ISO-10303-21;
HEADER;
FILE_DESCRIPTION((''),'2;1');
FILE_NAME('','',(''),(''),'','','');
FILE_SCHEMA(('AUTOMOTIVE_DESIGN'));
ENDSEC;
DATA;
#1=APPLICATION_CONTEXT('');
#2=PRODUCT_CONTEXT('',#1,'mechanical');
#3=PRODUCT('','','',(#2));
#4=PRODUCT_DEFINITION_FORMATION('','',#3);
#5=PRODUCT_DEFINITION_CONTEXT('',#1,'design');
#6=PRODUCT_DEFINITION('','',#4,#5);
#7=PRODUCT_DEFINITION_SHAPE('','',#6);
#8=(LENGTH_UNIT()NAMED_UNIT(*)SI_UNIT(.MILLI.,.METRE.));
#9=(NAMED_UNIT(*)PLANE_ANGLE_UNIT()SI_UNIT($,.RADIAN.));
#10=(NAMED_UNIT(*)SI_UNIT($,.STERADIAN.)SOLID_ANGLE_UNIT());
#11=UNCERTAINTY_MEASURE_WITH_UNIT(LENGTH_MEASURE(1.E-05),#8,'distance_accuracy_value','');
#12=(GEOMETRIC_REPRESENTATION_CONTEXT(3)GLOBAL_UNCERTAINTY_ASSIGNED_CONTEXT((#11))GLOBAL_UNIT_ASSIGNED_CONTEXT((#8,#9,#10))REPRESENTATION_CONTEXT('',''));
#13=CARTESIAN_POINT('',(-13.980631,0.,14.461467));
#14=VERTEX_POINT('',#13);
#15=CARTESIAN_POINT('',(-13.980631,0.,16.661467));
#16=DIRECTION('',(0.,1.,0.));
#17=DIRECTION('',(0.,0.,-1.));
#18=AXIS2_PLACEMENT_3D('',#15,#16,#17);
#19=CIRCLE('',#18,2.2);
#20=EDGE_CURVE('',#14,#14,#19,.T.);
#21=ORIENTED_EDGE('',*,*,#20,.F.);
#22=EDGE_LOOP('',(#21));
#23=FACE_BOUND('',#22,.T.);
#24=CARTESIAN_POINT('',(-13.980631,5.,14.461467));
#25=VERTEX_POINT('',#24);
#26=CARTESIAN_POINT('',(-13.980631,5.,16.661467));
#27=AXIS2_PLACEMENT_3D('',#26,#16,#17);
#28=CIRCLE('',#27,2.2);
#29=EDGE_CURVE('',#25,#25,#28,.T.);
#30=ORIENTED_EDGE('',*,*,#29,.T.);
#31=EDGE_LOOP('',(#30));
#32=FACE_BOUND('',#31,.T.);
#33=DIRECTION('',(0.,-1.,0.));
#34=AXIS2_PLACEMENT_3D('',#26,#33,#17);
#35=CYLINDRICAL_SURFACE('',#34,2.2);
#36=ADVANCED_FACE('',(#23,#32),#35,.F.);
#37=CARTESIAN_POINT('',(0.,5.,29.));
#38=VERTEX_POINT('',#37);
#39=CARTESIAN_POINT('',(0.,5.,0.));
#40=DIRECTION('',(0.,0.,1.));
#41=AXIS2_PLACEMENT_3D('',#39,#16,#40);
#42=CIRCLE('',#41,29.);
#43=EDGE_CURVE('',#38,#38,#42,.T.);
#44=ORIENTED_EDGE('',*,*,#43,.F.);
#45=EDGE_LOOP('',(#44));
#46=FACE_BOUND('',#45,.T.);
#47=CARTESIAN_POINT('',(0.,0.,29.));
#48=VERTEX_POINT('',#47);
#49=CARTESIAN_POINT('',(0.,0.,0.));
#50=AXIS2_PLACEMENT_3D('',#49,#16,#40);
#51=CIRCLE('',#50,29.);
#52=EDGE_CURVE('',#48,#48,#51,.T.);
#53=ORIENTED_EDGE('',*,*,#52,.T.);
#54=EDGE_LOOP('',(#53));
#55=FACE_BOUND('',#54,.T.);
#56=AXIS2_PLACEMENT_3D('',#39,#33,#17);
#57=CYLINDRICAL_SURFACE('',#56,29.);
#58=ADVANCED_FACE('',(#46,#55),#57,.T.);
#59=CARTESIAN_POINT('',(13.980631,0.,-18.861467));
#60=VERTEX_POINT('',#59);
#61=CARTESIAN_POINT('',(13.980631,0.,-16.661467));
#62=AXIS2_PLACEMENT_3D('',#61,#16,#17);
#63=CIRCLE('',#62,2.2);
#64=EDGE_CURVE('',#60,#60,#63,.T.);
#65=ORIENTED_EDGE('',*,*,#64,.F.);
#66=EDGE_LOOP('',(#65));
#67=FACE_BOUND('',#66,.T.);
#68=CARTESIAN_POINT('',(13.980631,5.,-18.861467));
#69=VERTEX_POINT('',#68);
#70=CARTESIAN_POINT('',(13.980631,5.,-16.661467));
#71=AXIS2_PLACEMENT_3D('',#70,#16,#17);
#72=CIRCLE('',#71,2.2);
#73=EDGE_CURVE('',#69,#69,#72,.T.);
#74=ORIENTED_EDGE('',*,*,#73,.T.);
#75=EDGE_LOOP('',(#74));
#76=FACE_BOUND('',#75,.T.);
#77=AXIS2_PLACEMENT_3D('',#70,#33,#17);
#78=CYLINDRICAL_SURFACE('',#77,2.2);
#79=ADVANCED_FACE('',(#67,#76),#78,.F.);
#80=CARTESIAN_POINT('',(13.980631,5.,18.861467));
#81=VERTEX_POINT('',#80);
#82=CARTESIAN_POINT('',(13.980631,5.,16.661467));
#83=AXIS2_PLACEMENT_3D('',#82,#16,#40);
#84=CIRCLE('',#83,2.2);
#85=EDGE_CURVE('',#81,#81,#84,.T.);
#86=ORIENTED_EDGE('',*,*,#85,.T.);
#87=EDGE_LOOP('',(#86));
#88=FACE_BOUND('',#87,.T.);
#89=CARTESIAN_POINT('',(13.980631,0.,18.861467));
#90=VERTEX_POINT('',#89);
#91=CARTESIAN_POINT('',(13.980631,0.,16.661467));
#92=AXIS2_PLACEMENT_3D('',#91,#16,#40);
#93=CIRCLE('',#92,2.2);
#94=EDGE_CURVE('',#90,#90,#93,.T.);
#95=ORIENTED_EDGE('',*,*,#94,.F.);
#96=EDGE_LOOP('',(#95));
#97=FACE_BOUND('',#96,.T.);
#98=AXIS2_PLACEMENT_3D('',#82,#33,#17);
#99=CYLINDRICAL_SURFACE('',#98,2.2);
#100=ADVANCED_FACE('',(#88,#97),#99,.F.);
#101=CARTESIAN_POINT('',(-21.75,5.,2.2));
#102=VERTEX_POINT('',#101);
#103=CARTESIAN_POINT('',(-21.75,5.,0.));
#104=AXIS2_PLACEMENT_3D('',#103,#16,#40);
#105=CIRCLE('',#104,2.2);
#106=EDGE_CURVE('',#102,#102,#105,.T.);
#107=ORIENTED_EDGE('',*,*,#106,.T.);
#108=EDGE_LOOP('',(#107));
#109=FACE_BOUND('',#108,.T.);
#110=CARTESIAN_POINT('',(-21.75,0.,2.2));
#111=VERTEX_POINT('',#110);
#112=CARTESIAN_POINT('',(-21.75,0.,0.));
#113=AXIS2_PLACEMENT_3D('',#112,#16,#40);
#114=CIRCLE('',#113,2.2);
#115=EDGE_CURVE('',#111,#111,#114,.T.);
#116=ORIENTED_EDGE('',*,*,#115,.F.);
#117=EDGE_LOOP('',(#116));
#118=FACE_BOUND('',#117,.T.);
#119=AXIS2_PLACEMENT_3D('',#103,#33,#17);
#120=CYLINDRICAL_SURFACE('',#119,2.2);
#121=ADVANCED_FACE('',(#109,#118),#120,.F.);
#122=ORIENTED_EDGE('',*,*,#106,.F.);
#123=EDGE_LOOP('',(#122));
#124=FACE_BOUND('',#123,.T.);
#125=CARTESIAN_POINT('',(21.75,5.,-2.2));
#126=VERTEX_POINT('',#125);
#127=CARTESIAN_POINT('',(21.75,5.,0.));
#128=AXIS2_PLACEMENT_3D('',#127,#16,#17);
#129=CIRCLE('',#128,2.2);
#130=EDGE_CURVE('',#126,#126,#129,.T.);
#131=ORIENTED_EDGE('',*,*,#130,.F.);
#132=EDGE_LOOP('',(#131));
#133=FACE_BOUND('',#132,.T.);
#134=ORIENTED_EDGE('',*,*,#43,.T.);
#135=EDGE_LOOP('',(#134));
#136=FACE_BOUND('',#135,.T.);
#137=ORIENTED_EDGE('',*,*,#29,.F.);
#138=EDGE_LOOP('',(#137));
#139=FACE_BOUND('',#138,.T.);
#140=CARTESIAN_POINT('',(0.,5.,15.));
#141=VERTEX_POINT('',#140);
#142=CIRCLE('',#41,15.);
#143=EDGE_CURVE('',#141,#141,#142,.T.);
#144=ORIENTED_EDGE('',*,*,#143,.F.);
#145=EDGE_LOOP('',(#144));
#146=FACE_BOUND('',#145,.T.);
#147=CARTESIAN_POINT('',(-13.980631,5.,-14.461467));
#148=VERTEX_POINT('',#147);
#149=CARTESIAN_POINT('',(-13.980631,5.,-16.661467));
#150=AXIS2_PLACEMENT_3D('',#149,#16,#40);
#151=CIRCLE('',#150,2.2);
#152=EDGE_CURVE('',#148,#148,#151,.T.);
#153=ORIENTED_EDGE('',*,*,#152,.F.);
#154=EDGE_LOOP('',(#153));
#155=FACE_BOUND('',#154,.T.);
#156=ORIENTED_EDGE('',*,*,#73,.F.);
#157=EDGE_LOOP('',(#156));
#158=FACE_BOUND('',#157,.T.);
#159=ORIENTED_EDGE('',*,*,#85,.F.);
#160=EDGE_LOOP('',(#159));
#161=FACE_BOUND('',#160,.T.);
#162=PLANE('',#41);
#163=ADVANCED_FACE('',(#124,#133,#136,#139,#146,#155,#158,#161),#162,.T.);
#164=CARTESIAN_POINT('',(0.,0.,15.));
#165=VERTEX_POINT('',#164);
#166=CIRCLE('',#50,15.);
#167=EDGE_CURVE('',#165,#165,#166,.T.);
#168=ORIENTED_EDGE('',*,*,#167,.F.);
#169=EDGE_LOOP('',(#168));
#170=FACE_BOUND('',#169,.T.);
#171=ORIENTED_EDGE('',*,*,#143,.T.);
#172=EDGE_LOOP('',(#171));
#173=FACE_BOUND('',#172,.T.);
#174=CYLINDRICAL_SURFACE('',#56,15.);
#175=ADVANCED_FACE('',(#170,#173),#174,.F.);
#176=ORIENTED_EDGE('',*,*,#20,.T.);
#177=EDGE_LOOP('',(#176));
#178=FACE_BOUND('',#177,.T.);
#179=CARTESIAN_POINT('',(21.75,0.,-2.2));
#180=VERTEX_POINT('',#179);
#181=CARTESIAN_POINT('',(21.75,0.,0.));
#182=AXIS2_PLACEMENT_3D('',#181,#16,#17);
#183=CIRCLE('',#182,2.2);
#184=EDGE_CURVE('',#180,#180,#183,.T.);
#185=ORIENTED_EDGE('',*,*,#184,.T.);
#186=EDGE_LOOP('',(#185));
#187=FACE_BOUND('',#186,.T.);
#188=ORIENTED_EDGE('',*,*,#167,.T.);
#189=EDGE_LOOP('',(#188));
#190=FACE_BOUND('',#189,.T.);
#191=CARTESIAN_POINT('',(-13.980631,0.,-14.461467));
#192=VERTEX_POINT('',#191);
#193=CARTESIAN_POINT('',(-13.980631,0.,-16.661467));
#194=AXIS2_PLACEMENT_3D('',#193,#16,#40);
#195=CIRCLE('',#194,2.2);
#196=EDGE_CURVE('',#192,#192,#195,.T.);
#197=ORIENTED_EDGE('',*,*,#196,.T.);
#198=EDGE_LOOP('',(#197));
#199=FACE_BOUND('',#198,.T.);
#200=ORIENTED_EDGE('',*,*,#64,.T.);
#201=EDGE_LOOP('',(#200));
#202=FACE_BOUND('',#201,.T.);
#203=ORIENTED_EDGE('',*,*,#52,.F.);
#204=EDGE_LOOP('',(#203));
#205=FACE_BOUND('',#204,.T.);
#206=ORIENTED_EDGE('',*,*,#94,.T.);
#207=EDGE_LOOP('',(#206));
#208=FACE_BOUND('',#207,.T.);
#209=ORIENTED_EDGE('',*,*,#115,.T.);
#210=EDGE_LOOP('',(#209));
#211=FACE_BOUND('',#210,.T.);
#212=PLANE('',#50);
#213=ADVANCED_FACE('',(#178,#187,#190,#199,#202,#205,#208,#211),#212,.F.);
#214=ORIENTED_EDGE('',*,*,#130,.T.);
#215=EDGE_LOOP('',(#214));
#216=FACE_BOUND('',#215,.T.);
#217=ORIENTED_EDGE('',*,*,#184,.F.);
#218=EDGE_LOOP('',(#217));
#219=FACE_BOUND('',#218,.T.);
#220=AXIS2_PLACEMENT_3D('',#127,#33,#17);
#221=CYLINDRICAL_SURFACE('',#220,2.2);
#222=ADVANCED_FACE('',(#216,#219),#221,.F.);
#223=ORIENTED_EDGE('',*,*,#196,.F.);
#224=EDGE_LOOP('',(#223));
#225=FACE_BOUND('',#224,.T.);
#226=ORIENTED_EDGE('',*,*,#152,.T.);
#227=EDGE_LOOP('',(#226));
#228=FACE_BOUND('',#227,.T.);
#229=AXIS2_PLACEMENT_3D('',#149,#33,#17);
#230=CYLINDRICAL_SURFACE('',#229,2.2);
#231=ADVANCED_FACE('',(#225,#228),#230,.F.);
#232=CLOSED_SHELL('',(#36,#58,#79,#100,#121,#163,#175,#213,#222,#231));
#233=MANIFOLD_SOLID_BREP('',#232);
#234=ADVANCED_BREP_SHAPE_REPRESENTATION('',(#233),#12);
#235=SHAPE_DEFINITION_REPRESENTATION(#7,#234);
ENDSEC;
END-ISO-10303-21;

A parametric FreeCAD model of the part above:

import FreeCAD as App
import Part
import Sketcher

V = App.Vector
Q = App.Units.Quantity

doc = App.newDocument("Part")
params = doc.addObject("Spreadsheet::Sheet", "Params")
for row, (alias, value) in enumerate([
    ("sketch1_diameter", "58 mm"),
    ("sketch1_diameter2", "30 mm"),
    ("sketch1_diameter3", "4.4 mm"),
    ("pad1_length", "5 mm"),
], start=1):
    params.set(f"A{row}", alias)
    params.set(f"B{row}", "=" + value)
    params.setAlias(f"B{row}", alias)

body = doc.addObject("PartDesign::Body", "Body")

sketch1 = body.newObject("Sketcher::SketchObject", "Sketch")
sketch1.AttachmentSupport = (doc.getObject("XZ_Plane"), [""])
sketch1.MapMode = "FlatFace"
sketch1.addGeometry(Part.Circle(V(0, 0, 0), V(0, 0, 1), 29), False)
sketch1.addGeometry(Part.Circle(V(-14, 16.7, 0), V(0, 0, 1), 2.2), False)
sketch1.addGeometry(Part.Circle(V(14, 16.7, 0), V(0, 0, 1), 2.2), False)
sketch1.addGeometry(Part.Circle(V(-21.8, 0, 0), V(0, 0, 1), 2.2), False)
sketch1.addGeometry(Part.Circle(V(-14, -16.7, 0), V(0, 0, 1), 2.2), False)
sketch1.addGeometry(Part.Circle(V(0, 0, 0), V(0, 0, 1), 15), False)
sketch1.addGeometry(Part.Circle(V(21.8, 0, 0), V(0, 0, 1), 2.2), False)
sketch1.addGeometry(Part.Circle(V(14, -16.7, 0), V(0, 0, 1), 2.2), False)
sketch1.addConstraint(Sketcher.Constraint("Coincident", 0, 3, -1, 1))
sketch1.addConstraint(Sketcher.Constraint("Coincident", 5, 3, -1, 1))
sketch1.addConstraint(Sketcher.Constraint("Equal", 1, 2))
sketch1.addConstraint(Sketcher.Constraint("Equal", 2, 3))
sketch1.addConstraint(Sketcher.Constraint("Equal", 3, 4))
sketch1.addConstraint(Sketcher.Constraint("Equal", 4, 6))
sketch1.addConstraint(Sketcher.Constraint("Equal", 6, 7))
sketch1.addConstraint(Sketcher.Constraint("Symmetric", 2, 3, 4, 3, -1, 1))
sketch1.addConstraint(Sketcher.Constraint("Symmetric", 3, 3, 6, 3, -1, 1))
sketch1.addConstraint(Sketcher.Constraint("Symmetric", 1, 3, 7, 3, -1, 1))
sketch1.addConstraint(Sketcher.Constraint("Symmetric", 1, 3, 2, 3, -2))
sketch1.addConstraint(Sketcher.Constraint("PointOnObject", 3, 3, -1))
sketch1.addConstraint(Sketcher.Constraint("Diameter", 0, Q("58 mm")))
sketch1.addConstraint(Sketcher.Constraint("Diameter", 5, Q("30 mm")))
sketch1.addConstraint(Sketcher.Constraint("Diameter", 1, Q("4.4 mm")))
sketch1.addConstraint(Sketcher.Constraint("DistanceX", 3, 3, -1, 1, Q("21.75 mm")))
sketch1.addConstraint(Sketcher.Constraint("DistanceX", 1, 3, -1, 1, Q("13.980631 mm")))
sketch1.addConstraint(Sketcher.Constraint("DistanceY", -1, 1, 1, 3, Q("16.661467 mm")))
sketch1.setExpression("Constraints[12]", "Params.sketch1_diameter")
sketch1.setExpression("Constraints[13]", "Params.sketch1_diameter2")
sketch1.setExpression("Constraints[14]", "Params.sketch1_diameter3")
pad1 = body.newObject("PartDesign::Pad", "Pad")
pad1.Profile = sketch1
pad1.setExpression("Length", "Params.pad1_length")
pad1.Reversed = True

doc.recompute()
